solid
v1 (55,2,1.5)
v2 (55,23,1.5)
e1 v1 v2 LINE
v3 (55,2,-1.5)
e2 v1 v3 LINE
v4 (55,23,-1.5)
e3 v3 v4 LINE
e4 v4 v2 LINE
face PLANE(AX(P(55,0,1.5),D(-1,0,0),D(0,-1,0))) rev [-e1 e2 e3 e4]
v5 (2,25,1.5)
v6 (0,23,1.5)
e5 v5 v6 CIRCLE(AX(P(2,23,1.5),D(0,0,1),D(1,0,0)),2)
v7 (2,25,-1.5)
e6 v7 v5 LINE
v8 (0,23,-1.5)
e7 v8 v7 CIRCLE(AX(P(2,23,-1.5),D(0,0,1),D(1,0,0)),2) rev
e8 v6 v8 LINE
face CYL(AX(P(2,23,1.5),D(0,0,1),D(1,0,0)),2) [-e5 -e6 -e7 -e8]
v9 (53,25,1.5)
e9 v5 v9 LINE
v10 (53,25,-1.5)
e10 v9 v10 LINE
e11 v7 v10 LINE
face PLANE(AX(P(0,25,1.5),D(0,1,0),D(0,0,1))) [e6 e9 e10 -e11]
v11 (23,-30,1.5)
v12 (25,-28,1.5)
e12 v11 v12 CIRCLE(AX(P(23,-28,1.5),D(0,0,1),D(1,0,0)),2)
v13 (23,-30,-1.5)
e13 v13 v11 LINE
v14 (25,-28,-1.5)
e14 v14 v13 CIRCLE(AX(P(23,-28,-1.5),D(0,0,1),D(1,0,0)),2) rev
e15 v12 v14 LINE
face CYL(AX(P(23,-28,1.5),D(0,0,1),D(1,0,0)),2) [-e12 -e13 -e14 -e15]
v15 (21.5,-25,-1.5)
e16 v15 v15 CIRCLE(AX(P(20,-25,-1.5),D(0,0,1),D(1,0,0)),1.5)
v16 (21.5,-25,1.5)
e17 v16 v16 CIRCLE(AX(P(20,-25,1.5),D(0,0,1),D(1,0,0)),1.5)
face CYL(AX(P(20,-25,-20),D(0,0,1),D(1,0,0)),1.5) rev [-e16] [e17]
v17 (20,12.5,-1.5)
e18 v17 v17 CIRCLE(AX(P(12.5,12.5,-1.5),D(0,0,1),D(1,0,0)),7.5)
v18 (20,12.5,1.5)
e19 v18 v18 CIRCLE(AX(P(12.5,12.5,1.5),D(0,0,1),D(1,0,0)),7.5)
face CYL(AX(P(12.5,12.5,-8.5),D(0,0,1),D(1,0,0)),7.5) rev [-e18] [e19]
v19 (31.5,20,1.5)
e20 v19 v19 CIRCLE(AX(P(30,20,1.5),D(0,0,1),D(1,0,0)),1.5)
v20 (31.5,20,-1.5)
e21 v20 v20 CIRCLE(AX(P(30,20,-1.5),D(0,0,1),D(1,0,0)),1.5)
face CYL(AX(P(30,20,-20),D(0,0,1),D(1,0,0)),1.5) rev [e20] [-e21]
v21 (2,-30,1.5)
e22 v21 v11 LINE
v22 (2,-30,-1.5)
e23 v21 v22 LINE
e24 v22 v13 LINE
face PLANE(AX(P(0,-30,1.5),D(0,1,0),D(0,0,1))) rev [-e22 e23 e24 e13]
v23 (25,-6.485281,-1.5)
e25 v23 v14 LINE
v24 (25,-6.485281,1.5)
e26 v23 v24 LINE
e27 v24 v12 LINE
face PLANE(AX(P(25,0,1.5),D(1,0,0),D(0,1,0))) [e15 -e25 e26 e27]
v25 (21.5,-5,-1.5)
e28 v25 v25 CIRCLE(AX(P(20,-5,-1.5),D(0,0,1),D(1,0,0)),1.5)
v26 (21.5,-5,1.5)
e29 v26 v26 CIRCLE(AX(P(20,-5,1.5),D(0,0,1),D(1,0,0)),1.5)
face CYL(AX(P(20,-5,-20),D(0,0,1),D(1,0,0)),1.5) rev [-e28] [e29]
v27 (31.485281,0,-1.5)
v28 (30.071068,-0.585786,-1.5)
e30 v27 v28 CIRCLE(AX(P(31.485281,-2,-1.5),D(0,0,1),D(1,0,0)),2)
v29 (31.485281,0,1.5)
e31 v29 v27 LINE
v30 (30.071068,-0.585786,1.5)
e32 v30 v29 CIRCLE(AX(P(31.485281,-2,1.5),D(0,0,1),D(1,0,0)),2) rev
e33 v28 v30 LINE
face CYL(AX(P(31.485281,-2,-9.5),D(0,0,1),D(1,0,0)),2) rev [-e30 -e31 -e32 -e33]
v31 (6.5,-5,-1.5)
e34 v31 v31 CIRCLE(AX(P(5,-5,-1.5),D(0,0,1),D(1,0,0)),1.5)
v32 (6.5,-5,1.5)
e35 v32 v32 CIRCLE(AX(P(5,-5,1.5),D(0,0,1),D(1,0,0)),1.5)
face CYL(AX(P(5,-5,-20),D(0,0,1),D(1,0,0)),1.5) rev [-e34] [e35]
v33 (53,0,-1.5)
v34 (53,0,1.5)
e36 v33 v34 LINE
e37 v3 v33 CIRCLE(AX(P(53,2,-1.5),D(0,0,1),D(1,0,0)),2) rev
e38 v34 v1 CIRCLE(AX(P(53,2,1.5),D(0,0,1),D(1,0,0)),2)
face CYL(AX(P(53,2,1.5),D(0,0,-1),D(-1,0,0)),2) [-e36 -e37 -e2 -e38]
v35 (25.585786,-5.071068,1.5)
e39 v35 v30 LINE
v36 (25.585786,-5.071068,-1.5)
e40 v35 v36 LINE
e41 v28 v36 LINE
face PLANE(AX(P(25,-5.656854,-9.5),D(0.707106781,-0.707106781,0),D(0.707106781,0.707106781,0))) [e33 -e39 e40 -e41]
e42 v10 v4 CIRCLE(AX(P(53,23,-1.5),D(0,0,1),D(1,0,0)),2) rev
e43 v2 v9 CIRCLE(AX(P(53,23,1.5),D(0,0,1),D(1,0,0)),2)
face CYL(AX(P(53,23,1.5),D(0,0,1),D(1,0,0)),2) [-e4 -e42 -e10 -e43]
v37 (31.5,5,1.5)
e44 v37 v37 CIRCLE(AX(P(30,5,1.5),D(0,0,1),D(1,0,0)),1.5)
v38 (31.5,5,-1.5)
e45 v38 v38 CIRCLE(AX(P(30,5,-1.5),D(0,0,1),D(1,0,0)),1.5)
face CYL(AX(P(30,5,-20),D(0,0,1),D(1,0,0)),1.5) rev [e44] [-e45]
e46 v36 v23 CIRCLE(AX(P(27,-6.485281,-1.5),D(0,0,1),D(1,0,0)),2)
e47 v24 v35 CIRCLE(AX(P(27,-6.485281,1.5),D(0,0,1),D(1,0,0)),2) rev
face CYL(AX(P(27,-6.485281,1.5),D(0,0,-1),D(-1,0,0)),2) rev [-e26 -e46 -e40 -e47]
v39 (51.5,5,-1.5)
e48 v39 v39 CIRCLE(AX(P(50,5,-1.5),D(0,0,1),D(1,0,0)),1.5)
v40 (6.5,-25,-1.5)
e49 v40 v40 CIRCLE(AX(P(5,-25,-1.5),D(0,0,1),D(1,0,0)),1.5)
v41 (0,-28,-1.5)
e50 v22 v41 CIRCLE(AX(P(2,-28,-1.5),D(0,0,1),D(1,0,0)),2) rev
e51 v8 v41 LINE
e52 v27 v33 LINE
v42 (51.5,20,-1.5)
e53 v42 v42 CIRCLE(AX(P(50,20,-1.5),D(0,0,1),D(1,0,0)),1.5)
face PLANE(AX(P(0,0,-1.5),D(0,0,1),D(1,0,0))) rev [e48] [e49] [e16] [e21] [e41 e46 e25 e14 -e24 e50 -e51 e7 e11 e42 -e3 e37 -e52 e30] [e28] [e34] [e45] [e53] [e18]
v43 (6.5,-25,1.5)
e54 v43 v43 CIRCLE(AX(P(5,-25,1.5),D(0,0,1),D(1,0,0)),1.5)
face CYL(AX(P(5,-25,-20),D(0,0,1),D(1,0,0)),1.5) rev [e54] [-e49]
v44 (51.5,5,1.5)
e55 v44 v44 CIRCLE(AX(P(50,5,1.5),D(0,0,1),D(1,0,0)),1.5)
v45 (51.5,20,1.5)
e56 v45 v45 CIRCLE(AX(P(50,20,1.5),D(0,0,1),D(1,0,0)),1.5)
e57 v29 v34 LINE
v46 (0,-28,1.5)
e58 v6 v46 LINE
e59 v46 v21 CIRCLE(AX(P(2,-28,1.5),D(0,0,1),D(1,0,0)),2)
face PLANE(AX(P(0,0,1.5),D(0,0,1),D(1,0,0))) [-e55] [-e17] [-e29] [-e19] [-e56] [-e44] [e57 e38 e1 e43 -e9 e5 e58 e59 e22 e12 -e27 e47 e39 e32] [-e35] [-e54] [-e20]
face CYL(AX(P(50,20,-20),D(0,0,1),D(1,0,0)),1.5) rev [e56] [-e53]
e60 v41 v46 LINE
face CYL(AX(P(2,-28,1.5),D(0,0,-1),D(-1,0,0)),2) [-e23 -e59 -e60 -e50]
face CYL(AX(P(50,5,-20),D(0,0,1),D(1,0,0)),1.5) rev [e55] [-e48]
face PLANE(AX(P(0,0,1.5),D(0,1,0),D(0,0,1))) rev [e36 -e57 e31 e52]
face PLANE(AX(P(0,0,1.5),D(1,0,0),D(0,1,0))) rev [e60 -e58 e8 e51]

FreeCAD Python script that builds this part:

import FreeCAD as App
import Part
import Sketcher
from FreeCAD import Vector
Q = App.Units.Quantity


def edges_at(feature, points):
    """Names of the edges that pass closest to the given points."""
    edges = feature.Shape.Edges
    near = lambda p: min(range(len(edges)), key=lambda i: edges[i].distToShape(Part.Vertex(*p))[0])
    return sorted({f"Edge{near(p) + 1}" for p in points})

doc = App.newDocument("Part")
body = doc.addObject("PartDesign::Body", "Body")

# Sketch on XY plane
sketch1 = body.newObject("Sketcher::SketchObject", "Sketch")
sketch1.AttachmentSupport = (doc.getObject("XY_Plane"), [""])
sketch1.MapMode = "FlatFace"
sketch1.addGeometry(Part.LineSegment(Vector(0, -30, 0), Vector(25, -30, 0)), False)
sketch1.addGeometry(Part.LineSegment(Vector(25, -30, 0), Vector(25, 0, 0)), False)
sketch1.addGeometry(Part.LineSegment(Vector(25, 0, 0), Vector(55, 0, 0)), False)
sketch1.addGeometry(Part.LineSegment(Vector(55, 0, 0), Vector(55, 25, 0)), False)
sketch1.addGeometry(Part.LineSegment(Vector(55, 25, 0), Vector(0, 25, 0)), False)
sketch1.addGeometry(Part.LineSegment(Vector(0, 25, 0), Vector(0, -30, 0)), False)
sketch1.addConstraint(Sketcher.Constraint("Coincident", 0, 2, 1, 1))
sketch1.addConstraint(Sketcher.Constraint("Coincident", 1, 2, 2, 1))
sketch1.addConstraint(Sketcher.Constraint("Coincident", 2, 2, 3, 1))
sketch1.addConstraint(Sketcher.Constraint("Coincident", 3, 2, 4, 1))
sketch1.addConstraint(Sketcher.Constraint("Coincident", 4, 2, 5, 1))
sketch1.addConstraint(Sketcher.Constraint("Coincident", 5, 2, 0, 1))
sketch1.addConstraint(Sketcher.Constraint("Horizontal", 0))
sketch1.addConstraint(Sketcher.Constraint("Vertical", 1))
sketch1.addConstraint(Sketcher.Constraint("Horizontal", 2))
sketch1.addConstraint(Sketcher.Constraint("Vertical", 3))
sketch1.addConstraint(Sketcher.Constraint("Horizontal", 4))
sketch1.addConstraint(Sketcher.Constraint("Vertical", 5))
sketch1.addConstraint(Sketcher.Constraint("PointOnObject", 1, 2, -1))
sketch1.addConstraint(Sketcher.Constraint("PointOnObject", 4, 2, -2))
sketch1.addConstraint(Sketcher.Constraint("Equal", 2, 1))
sketch1.addConstraint(Sketcher.Constraint("Equal", 0, 3))
sketch1.addConstraint(Sketcher.Constraint("DistanceX", 0, 1, 0, 2, Q("25 mm")))
sketch1.addConstraint(Sketcher.Constraint("DistanceX", 2, 1, 2, 2, Q("30 mm")))
pad1 = body.newObject("PartDesign::Pad", "Pad")
pad1.Profile = sketch1
pad1.Length = 3
pad1.Midplane = True

# Sketch on XY plane
sketch2 = body.newObject("Sketcher::SketchObject", "Sketch001")
sketch2.AttachmentSupport = (doc.getObject("XY_Plane"), [""])
sketch2.MapMode = "FlatFace"
sketch2.AttachmentOffset = App.Placement(Vector(0, 0, 1.5), App.Rotation())
sketch2.addGeometry(Part.Circle(Vector(20, -25, 0), Vector(0, 0, 1), 1.5), False)
sketch2.addGeometry(Part.Circle(Vector(5, -25, 0), Vector(0, 0, 1), 1.5), False)
sketch2.addGeometry(Part.Circle(Vector(5, -5, 0), Vector(0, 0, 1), 1.5), False)
sketch2.addGeometry(Part.Circle(Vector(20, -5, 0), Vector(0, 0, 1), 1.5), False)
sketch2.addGeometry(Part.Circle(Vector(30, 5, 0), Vector(0, 0, 1), 1.5), False)
sketch2.addGeometry(Part.Circle(Vector(30, 20, 0), Vector(0, 0, 1), 1.5), False)
sketch2.addGeometry(Part.Circle(Vector(50, 20, 0), Vector(0, 0, 1), 1.5), False)
sketch2.addGeometry(Part.Circle(Vector(50, 5, 0), Vector(0, 0, 1), 1.5), False)
sketch2.addConstraint(Sketcher.Constraint("Equal", 0, 1))
sketch2.addConstraint(Sketcher.Constraint("Equal", 1, 2))
sketch2.addConstraint(Sketcher.Constraint("Equal", 2, 3))
sketch2.addConstraint(Sketcher.Constraint("Equal", 3, 4))
sketch2.addConstraint(Sketcher.Constraint("Equal", 4, 5))
sketch2.addConstraint(Sketcher.Constraint("Equal", 5, 6))
sketch2.addConstraint(Sketcher.Constraint("Equal", 6, 7))
sketch2.addConstraint(Sketcher.Constraint("Horizontal", 0, 3, 1, 3))
sketch2.addConstraint(Sketcher.Constraint("Horizontal", 2, 3, 3, 3))
sketch2.addConstraint(Sketcher.Constraint("Horizontal", 5, 3, 6, 3))
sketch2.addConstraint(Sketcher.Constraint("Horizontal", 4, 3, 7, 3))
sketch2.addConstraint(Sketcher.Constraint("Vertical", 1, 3, 2, 3))
sketch2.addConstraint(Sketcher.Constraint("Vertical", 0, 3, 3, 3))
sketch2.addConstraint(Sketcher.Constraint("Vertical", 4, 3, 5, 3))
sketch2.addConstraint(Sketcher.Constraint("Vertical", 6, 3, 7, 3))
sketch2.addConstraint(Sketcher.Constraint("Diameter", 0, Q("3 mm")))
sketch2.addConstraint(Sketcher.Constraint("DistanceX", -1, 1, 0, 3, Q("20 mm")))
sketch2.addConstraint(Sketcher.Constraint("DistanceY", 0, 3, -1, 1, Q("25 mm")))
sketch2.addConstraint(Sketcher.Constraint("DistanceX", -1, 1, 1, 3, Q("5 mm")))
sketch2.addConstraint(Sketcher.Constraint("DistanceY", 2, 3, -1, 1, Q("5 mm")))
sketch2.addConstraint(Sketcher.Constraint("DistanceX", -1, 1, 4, 3, Q("30 mm")))
sketch2.addConstraint(Sketcher.Constraint("DistanceY", -1, 1, 4, 3, Q("5 mm")))
sketch2.addConstraint(Sketcher.Constraint("DistanceY", -1, 1, 5, 3, Q("20 mm")))
sketch2.addConstraint(Sketcher.Constraint("DistanceX", -1, 1, 6, 3, Q("50 mm")))
pocket1 = body.newObject("PartDesign::Pocket", "Pocket")
pocket1.Profile = sketch2
pocket1.Length = 43
pocket1.Midplane = True

# Sketch on XY plane
sketch3 = body.newObject("Sketcher::SketchObject", "Sketch002")
sketch3.AttachmentSupport = (doc.getObject("XY_Plane"), [""])
sketch3.MapMode = "FlatFace"
sketch3.AttachmentOffset = App.Placement(Vector(0, 0, 1.5), App.Rotation())
sketch3.addGeometry(Part.LineSegment(Vector(25, -6, 0), Vector(31, 0, 0)), False)
sketch3.addGeometry(Part.LineSegment(Vector(31, 0, 0), Vector(25, 0, 0)), False)
sketch3.addGeometry(Part.LineSegment(Vector(25, 0, 0), Vector(25, -6, 0)), False)
sketch3.addConstraint(Sketcher.Constraint("Coincident", 0, 2, 1, 1))
sketch3.addConstraint(Sketcher.Constraint("Coincident", 1, 2, 2, 1))
sketch3.addConstraint(Sketcher.Constraint("Coincident", 2, 2, 0, 1))
sketch3.addConstraint(Sketcher.Constraint("Horizontal", 1))
sketch3.addConstraint(Sketcher.Constraint("Vertical", 2))
sketch3.addConstraint(Sketcher.Constraint("PointOnObject", 0, 2, -1))
sketch3.addConstraint(Sketcher.Constraint("Equal", 1, 2))
sketch3.addConstraint(Sketcher.Constraint("Distance", 0, Q("8 mm")))
sketch3.addConstraint(Sketcher.Constraint("DistanceX", -1, 1, 1, 2, Q("25 mm")))
pad2 = body.newObject("PartDesign::Pad", "Pad001")
pad2.Profile = sketch3
pad2.Length = 3
pad2.Reversed = True
doc.recompute()

fillet = body.newObject("PartDesign::Fillet", "Fillet")
fillet.Base = (pad2, edges_at(pad2, [
    (25, -30, 0),
    (0, -30, 0),
    (0, 25, 0),
    (55, 25, 0),
    (55, 0, 0),
    (25, -5.657, 0),
    (30.657, 0, 0),
]))
fillet.Radius = 2

# Sketch on XY plane
sketch4 = body.newObject("Sketcher::SketchObject", "Sketch003")
sketch4.AttachmentSupport = (doc.getObject("XY_Plane"), [""])
sketch4.MapMode = "FlatFace"
sketch4.AttachmentOffset = App.Placement(Vector(0, 0, 1.5), App.Rotation())
sketch4.addGeometry(Part.Circle(Vector(12, 12, 0), Vector(0, 0, 1), 8), False)
sketch4.addConstraint(Sketcher.Constraint("Diameter", 0, Q("15 mm")))
sketch4.addConstraint(Sketcher.Constraint("DistanceX", -1, 1, 0, 3, Q("12.5 mm")))
sketch4.addConstraint(Sketcher.Constraint("DistanceY", -1, 1, 0, 3, Q("12.5 mm")))
pocket2 = body.newObject("PartDesign::Pocket", "Pocket001")
pocket2.Profile = sketch4
pocket2.Length = 10

doc.recompute()
